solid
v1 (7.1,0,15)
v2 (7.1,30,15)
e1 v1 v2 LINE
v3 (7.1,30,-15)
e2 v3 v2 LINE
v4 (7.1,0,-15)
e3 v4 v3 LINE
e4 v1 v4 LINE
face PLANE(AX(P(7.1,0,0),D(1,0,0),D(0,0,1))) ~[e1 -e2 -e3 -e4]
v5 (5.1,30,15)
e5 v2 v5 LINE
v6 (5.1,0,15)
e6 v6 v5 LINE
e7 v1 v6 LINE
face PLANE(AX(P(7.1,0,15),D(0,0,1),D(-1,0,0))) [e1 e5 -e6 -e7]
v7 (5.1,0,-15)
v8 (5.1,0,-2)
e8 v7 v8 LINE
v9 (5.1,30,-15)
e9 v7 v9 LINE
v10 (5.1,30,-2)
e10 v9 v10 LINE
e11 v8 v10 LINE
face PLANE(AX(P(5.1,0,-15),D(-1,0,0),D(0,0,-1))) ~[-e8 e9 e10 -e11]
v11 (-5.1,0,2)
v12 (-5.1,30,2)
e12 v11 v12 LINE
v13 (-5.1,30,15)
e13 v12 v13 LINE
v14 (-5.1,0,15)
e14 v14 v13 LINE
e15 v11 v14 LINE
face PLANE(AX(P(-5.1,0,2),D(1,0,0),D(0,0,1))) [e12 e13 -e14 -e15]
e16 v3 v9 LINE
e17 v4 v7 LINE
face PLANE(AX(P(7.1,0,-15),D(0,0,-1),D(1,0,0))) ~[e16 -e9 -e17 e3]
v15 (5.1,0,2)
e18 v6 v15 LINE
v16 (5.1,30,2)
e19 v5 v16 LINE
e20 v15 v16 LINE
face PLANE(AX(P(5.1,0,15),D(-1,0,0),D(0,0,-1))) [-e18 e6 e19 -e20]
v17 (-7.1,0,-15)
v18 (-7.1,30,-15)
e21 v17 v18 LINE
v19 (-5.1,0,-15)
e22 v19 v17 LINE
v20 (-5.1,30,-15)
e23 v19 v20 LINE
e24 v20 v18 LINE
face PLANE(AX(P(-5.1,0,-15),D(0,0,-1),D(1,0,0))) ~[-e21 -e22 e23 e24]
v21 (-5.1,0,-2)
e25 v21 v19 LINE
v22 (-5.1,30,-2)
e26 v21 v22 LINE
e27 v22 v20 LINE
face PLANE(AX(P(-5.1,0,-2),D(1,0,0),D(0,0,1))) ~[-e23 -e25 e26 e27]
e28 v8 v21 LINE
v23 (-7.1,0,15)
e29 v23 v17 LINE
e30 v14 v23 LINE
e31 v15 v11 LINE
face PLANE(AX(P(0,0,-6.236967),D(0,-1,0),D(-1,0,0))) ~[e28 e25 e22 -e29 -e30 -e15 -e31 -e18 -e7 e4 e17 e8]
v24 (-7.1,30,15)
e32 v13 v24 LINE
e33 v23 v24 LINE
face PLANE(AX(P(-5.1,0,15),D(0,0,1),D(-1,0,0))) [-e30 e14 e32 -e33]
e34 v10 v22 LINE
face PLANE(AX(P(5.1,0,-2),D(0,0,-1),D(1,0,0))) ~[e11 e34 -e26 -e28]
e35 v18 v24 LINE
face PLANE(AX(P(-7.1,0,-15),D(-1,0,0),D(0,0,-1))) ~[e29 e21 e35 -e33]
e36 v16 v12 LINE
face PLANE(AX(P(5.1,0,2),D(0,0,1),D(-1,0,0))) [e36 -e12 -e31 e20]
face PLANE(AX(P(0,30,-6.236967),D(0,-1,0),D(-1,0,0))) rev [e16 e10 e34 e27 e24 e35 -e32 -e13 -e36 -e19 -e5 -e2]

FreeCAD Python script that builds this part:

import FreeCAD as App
import Part
import Sketcher


def add_polygon(sketch, points):
    """Adds a closed chain of lines whose ends are joined by coincident constraints."""
    first, n = sketch.GeometryCount, len(points)
    for a, b in zip(points, points[1:] + points[:1]):
        sketch.addGeometry(Part.LineSegment(App.Vector(*a, 0), App.Vector(*b, 0)), False)
    for i in range(n):
        sketch.addConstraint(Sketcher.Constraint("Coincident", first + i, 2, first + (i + 1) % n, 1))

doc = App.newDocument("Part")
body = doc.addObject("PartDesign::Body", "Body")

sketch1 = doc.addObject("Sketcher::SketchObject", "Sketch")
body.addObject(sketch1)
sketch1.AttachmentSupport = (doc.XZ_Plane, [""])
sketch1.MapMode = "FlatFace"
add_polygon(sketch1, [(-7.1, 0), (7.1, 0), (7.1, 15), (5.1, 15), (5.1, 2), (-5.1, 2), (-5.1, 15), (-7.1, 15)])
sketch1.addConstraint([
    Sketcher.Constraint("Horizontal", 0),
    Sketcher.Constraint("Vertical", 1),
    Sketcher.Constraint("Horizontal", 2),
    Sketcher.Constraint("Vertical", 3),
    Sketcher.Constraint("Horizontal", 4),
    Sketcher.Constraint("Vertical", 5),
    Sketcher.Constraint("Horizontal", 6),
    Sketcher.Constraint("Vertical", 7),
    Sketcher.Constraint("Symmetric", 0, 2, 7, 2, -1, 1),
    Sketcher.Constraint("Symmetric", 2, 2, 5, 2, -2),
    Sketcher.Constraint("DistanceX", 2, 2, 2, 1, 2.0),
    Sketcher.Constraint("DistanceY", 1, 1, 1, 2, 15.0),
    Sketcher.Constraint("DistanceY", 3, 2, 3, 1, 13.0),
    Sketcher.Constraint("DistanceX", 0, 1, 0, 2, 14.2),
])
pad1 = doc.addObject("PartDesign::Pad", "Pad")
body.addObject(pad1)
pad1.Profile = sketch1
pad1.Length = 30
pad1.Reversed = True
body2 = doc.addObject("PartDesign::Body", "Body001")
doc.recompute()

body2.BaseFeature = body
doc.recompute()

mirroring = doc.addObject("Part::Mirroring", "Mirroring")
mirroring.Source = body
mirroring.Base = App.Vector(0, 15, 0)
mirroring.Normal = App.Vector(0, 0, -1)
body3 = doc.addObject("PartDesign::Body", "Body002")
body3.BaseFeature = mirroring
boolean = doc.addObject("PartDesign::Boolean", "Boolean")
body2.addObject(boolean)
boolean.Type = "Fuse"
boolean.addObjects([body3])
doc.recompute()
mirroring.Visibility = False

doc.recompute()
